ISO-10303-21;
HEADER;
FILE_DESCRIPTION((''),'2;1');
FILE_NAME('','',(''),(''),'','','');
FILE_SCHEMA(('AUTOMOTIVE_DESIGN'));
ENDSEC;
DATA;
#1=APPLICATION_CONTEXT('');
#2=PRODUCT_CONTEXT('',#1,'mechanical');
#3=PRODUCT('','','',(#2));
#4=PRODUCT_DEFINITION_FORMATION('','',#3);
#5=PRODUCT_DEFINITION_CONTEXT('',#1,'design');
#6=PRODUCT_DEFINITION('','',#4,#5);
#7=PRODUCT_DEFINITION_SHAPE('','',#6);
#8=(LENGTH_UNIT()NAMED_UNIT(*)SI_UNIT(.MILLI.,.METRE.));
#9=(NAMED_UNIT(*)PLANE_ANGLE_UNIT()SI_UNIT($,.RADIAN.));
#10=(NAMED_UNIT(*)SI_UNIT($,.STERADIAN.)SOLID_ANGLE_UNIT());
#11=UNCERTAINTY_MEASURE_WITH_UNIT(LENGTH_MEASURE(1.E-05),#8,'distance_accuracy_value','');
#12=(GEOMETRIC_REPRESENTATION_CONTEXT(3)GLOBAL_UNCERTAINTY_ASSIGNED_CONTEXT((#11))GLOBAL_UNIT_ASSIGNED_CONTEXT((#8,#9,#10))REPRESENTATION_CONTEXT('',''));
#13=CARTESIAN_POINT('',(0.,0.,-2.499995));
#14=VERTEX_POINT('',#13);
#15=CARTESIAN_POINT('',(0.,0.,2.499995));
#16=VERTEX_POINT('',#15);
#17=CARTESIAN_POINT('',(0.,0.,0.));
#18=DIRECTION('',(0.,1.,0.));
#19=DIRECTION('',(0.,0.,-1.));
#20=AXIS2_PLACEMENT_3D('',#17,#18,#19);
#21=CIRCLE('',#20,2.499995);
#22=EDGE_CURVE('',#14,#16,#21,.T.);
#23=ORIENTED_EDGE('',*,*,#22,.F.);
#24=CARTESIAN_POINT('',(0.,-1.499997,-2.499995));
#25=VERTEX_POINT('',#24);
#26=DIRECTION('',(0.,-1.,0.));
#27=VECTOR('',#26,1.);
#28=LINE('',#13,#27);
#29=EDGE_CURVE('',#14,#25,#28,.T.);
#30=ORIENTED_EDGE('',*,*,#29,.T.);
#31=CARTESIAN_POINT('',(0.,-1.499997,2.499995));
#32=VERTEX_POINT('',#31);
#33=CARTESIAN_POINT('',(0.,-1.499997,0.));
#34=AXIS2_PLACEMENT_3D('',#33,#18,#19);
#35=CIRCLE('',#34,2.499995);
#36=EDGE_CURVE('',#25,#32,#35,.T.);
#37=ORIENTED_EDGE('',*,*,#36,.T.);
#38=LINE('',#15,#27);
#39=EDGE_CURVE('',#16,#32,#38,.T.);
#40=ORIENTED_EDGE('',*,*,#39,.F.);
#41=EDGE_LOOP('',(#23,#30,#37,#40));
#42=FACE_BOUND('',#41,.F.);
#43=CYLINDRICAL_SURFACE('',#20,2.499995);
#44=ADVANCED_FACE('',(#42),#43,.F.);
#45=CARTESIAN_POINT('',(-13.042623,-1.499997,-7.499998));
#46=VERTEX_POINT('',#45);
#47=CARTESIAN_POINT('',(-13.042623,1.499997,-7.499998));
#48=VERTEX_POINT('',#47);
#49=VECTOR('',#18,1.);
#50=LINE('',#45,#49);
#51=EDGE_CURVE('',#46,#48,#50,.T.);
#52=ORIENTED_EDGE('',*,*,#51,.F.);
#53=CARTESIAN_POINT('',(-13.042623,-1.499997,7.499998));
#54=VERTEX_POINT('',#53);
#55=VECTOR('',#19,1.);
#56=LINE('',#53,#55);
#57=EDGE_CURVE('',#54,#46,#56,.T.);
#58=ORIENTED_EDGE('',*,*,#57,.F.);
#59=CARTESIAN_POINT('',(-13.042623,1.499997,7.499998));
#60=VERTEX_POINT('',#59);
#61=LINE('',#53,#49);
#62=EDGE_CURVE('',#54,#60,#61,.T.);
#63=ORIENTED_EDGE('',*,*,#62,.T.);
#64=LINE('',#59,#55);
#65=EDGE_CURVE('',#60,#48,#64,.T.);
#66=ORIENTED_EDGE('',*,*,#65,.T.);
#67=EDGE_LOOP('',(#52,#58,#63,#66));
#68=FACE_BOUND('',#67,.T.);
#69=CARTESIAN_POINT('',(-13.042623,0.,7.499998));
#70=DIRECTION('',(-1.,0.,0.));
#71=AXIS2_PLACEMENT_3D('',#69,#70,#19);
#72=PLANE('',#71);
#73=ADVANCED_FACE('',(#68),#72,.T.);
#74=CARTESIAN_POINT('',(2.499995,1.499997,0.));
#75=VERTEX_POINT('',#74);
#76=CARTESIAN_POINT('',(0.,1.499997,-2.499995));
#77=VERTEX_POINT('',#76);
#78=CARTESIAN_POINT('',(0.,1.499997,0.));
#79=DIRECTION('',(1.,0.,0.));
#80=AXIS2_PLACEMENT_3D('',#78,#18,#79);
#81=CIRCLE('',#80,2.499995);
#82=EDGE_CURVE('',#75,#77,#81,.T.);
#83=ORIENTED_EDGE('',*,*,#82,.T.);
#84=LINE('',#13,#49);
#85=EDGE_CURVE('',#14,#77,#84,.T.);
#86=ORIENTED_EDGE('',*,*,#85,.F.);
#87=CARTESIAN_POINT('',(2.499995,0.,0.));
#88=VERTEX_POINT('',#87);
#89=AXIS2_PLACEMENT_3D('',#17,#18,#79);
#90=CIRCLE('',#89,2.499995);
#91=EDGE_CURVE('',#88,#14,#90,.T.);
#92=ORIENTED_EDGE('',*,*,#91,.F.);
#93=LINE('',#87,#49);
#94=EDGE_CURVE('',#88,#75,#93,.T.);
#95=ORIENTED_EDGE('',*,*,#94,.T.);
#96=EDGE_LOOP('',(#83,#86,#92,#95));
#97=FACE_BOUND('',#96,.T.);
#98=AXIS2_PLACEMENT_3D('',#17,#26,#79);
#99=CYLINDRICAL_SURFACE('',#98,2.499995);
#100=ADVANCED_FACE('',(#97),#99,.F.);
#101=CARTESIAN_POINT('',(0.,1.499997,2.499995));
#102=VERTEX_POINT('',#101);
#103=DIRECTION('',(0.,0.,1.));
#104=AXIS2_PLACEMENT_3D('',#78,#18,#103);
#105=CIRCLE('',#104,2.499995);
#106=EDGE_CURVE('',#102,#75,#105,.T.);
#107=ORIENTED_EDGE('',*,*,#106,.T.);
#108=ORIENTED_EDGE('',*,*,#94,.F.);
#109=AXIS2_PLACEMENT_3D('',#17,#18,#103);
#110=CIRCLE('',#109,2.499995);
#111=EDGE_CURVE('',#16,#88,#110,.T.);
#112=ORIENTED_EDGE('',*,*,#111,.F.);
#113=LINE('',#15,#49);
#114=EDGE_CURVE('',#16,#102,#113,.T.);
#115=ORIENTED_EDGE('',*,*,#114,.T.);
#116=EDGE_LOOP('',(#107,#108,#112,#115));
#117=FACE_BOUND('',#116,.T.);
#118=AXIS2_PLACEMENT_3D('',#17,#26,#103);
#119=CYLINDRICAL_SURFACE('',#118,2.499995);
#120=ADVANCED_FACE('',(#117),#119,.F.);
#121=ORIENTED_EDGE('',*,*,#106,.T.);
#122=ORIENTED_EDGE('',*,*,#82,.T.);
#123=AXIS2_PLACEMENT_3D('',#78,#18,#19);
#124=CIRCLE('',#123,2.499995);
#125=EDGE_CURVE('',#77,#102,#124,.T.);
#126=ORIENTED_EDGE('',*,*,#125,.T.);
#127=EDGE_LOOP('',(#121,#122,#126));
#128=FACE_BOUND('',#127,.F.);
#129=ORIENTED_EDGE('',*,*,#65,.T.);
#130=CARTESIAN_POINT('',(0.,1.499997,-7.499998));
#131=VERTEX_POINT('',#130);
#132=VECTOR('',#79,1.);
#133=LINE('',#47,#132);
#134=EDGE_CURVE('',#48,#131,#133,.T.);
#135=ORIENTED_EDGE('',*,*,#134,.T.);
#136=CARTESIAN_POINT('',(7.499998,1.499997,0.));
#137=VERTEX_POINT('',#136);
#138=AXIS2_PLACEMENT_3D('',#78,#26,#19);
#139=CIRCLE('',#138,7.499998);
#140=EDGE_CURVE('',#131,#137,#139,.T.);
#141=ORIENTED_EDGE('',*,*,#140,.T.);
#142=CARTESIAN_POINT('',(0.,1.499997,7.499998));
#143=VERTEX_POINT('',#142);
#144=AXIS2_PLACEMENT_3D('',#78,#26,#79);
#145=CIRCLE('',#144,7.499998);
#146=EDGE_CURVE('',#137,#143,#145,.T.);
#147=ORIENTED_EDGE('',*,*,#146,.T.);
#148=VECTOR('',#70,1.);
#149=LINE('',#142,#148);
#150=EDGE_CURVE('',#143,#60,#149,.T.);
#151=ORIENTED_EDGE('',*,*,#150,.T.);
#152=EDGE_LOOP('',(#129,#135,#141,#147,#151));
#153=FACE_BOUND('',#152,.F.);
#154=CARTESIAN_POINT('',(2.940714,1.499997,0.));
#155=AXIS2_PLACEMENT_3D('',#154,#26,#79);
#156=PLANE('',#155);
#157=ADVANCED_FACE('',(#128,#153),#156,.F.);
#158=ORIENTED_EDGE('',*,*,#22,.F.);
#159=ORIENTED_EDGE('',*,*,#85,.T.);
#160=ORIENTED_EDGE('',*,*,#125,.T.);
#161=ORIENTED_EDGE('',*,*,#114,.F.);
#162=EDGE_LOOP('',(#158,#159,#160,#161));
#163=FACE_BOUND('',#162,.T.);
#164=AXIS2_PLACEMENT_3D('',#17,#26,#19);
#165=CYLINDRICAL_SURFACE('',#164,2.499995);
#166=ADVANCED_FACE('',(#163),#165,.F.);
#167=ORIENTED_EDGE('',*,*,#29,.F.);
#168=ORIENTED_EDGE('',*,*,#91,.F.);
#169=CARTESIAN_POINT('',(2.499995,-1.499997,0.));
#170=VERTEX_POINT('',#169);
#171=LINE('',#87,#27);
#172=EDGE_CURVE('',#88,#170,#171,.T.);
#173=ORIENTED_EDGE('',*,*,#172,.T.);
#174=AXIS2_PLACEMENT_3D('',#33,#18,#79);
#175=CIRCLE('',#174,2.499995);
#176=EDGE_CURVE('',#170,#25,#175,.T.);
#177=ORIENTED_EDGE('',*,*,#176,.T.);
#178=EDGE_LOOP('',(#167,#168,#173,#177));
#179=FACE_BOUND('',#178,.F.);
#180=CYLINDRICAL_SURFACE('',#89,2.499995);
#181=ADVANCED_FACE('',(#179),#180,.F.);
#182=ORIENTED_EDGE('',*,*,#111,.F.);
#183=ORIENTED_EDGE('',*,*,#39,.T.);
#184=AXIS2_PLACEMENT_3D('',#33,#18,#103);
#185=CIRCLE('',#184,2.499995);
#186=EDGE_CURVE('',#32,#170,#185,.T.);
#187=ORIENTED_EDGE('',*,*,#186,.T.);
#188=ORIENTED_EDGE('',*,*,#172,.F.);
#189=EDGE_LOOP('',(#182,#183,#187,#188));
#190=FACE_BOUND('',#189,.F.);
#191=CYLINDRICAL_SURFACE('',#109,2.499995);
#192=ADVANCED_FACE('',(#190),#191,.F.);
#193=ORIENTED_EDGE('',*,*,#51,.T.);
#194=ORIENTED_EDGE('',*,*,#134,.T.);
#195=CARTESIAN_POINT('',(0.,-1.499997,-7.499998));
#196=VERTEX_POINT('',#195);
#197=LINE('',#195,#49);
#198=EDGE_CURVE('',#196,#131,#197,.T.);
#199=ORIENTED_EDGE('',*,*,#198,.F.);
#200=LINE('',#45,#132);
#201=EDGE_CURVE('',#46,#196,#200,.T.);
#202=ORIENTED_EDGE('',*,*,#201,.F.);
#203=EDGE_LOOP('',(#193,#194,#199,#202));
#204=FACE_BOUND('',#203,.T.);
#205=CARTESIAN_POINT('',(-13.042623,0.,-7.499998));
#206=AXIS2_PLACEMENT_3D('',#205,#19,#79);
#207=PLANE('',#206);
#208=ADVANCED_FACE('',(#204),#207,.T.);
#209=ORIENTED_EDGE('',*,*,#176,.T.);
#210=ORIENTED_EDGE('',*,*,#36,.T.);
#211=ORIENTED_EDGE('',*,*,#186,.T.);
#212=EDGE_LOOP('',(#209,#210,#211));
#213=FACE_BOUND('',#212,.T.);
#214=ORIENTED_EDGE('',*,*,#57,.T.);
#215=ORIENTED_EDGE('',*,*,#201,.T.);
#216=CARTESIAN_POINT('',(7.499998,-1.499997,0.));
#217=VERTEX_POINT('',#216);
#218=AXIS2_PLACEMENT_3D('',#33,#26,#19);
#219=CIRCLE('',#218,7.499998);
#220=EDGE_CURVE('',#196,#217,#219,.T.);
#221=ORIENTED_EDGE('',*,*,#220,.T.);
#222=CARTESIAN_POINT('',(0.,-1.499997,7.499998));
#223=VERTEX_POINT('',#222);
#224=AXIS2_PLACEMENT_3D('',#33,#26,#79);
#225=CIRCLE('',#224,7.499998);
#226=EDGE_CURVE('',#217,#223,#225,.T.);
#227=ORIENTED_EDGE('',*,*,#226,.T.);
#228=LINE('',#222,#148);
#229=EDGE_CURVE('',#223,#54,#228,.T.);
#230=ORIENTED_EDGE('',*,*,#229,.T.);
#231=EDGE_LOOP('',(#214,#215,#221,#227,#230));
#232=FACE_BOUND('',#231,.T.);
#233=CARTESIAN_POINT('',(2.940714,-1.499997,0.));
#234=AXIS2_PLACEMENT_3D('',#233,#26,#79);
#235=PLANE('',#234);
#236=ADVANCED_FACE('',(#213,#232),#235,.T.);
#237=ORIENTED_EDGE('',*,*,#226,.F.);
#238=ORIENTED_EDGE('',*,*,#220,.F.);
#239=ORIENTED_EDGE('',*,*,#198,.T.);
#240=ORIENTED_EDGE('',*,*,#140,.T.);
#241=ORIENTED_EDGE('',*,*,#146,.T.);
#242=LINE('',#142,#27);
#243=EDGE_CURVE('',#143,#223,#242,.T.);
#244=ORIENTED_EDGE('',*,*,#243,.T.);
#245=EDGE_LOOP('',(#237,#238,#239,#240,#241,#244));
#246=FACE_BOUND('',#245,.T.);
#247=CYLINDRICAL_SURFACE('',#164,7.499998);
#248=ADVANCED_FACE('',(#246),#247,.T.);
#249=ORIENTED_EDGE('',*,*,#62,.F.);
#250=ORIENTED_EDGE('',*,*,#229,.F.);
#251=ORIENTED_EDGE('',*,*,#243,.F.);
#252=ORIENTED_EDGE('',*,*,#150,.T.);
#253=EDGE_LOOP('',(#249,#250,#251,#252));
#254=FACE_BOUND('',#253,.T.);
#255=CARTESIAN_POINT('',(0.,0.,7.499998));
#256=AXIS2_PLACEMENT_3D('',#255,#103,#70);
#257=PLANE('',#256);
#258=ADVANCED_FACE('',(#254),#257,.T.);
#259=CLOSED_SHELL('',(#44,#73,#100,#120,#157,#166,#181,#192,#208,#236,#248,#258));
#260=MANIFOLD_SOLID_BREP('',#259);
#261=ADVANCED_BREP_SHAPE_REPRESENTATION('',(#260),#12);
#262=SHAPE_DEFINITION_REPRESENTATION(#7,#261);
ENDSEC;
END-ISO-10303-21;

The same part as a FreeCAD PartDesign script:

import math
import FreeCAD as App
import Part
import Sketcher

doc = App.newDocument("Part")
body = doc.addObject("PartDesign::Body", "Body")

# Sketch on XZ plane
sketch1 = body.newObject("Sketcher::SketchObject", "Sketch")
sketch1.AttachmentSupport = (doc.getObject("XZ_Plane"), [""])
sketch1.MapMode = "FlatFace"
sketch1.addGeometry([
    Part.ArcOfCircle(Part.Circle(App.Vector(0, 0, 0), App.Vector(0, 0, 1), 7.5), math.radians(-90), math.radians(0)),  # 0
    Part.ArcOfCircle(Part.Circle(App.Vector(0, 0, 0), App.Vector(0, 0, 1), 7.5), math.radians(0), math.radians(90)),  # 1
    Part.LineSegment(App.Vector(0, 7.5, 0), App.Vector(-13, 7.5, 0)),  # 2
    Part.LineSegment(App.Vector(-13, 7.5, 0), App.Vector(-13, -7.5, 0)),  # 3
    Part.LineSegment(App.Vector(-13, -7.5, 0), App.Vector(0, -7.5, 0)),  # 4
    Part.ArcOfCircle(Part.Circle(App.Vector(0, 0, 0), App.Vector(0, 0, 1), 2.5), math.radians(0), math.radians(90)),  # 5
    Part.ArcOfCircle(Part.Circle(App.Vector(0, 0, 0), App.Vector(0, 0, 1), 2.5), math.radians(-90), math.radians(0)),  # 6
    Part.ArcOfCircle(Part.Circle(App.Vector(0, 0, 0), App.Vector(0, 0, 1), 2.5), math.radians(90), math.radians(270)),  # 7
], False)
sketch1.addConstraint([
    Sketcher.Constraint("Tangent", 0, 2, 1, 1),
    Sketcher.Constraint("Tangent", 1, 2, 2, 1),
    Sketcher.Constraint("Coincident", 2, 2, 3, 1),
    Sketcher.Constraint("Coincident", 3, 2, 4, 1),
    Sketcher.Constraint("Tangent", 4, 2, 0, 1),
    Sketcher.Constraint("Tangent", 5, 1, 6, 2),
    Sketcher.Constraint("Tangent", 6, 1, 7, 2),
    Sketcher.Constraint("Tangent", 7, 1, 5, 2),
    Sketcher.Constraint("Horizontal", 2),
    Sketcher.Constraint("Vertical", 3),
    Sketcher.Constraint("Horizontal", 4),
    Sketcher.Constraint("Coincident", 0, 3, -1, 1),
    Sketcher.Constraint("Coincident", 5, 3, -1, 1),
    Sketcher.Constraint("Equal", 0, 1),
    Sketcher.Constraint("PointOnObject", 0, 2, -1),
    Sketcher.Constraint("PointOnObject", 5, 1, -1),
    Sketcher.Constraint("PointOnObject", 6, 1, -2),
    Sketcher.Constraint("PointOnObject", 7, 1, -2),
    Sketcher.Constraint("Radius", 0, 7.499998),
    Sketcher.Constraint("Radius", 5, 2.499995),
    Sketcher.Constraint("DistanceX", 2, 2, 2, 1, 13.042623),
])
pad1 = body.newObject("PartDesign::Pad", "Pad")
pad1.Profile = sketch1
pad1.Length = 2.999994
pad1.Midplane = True

doc.recompute()
